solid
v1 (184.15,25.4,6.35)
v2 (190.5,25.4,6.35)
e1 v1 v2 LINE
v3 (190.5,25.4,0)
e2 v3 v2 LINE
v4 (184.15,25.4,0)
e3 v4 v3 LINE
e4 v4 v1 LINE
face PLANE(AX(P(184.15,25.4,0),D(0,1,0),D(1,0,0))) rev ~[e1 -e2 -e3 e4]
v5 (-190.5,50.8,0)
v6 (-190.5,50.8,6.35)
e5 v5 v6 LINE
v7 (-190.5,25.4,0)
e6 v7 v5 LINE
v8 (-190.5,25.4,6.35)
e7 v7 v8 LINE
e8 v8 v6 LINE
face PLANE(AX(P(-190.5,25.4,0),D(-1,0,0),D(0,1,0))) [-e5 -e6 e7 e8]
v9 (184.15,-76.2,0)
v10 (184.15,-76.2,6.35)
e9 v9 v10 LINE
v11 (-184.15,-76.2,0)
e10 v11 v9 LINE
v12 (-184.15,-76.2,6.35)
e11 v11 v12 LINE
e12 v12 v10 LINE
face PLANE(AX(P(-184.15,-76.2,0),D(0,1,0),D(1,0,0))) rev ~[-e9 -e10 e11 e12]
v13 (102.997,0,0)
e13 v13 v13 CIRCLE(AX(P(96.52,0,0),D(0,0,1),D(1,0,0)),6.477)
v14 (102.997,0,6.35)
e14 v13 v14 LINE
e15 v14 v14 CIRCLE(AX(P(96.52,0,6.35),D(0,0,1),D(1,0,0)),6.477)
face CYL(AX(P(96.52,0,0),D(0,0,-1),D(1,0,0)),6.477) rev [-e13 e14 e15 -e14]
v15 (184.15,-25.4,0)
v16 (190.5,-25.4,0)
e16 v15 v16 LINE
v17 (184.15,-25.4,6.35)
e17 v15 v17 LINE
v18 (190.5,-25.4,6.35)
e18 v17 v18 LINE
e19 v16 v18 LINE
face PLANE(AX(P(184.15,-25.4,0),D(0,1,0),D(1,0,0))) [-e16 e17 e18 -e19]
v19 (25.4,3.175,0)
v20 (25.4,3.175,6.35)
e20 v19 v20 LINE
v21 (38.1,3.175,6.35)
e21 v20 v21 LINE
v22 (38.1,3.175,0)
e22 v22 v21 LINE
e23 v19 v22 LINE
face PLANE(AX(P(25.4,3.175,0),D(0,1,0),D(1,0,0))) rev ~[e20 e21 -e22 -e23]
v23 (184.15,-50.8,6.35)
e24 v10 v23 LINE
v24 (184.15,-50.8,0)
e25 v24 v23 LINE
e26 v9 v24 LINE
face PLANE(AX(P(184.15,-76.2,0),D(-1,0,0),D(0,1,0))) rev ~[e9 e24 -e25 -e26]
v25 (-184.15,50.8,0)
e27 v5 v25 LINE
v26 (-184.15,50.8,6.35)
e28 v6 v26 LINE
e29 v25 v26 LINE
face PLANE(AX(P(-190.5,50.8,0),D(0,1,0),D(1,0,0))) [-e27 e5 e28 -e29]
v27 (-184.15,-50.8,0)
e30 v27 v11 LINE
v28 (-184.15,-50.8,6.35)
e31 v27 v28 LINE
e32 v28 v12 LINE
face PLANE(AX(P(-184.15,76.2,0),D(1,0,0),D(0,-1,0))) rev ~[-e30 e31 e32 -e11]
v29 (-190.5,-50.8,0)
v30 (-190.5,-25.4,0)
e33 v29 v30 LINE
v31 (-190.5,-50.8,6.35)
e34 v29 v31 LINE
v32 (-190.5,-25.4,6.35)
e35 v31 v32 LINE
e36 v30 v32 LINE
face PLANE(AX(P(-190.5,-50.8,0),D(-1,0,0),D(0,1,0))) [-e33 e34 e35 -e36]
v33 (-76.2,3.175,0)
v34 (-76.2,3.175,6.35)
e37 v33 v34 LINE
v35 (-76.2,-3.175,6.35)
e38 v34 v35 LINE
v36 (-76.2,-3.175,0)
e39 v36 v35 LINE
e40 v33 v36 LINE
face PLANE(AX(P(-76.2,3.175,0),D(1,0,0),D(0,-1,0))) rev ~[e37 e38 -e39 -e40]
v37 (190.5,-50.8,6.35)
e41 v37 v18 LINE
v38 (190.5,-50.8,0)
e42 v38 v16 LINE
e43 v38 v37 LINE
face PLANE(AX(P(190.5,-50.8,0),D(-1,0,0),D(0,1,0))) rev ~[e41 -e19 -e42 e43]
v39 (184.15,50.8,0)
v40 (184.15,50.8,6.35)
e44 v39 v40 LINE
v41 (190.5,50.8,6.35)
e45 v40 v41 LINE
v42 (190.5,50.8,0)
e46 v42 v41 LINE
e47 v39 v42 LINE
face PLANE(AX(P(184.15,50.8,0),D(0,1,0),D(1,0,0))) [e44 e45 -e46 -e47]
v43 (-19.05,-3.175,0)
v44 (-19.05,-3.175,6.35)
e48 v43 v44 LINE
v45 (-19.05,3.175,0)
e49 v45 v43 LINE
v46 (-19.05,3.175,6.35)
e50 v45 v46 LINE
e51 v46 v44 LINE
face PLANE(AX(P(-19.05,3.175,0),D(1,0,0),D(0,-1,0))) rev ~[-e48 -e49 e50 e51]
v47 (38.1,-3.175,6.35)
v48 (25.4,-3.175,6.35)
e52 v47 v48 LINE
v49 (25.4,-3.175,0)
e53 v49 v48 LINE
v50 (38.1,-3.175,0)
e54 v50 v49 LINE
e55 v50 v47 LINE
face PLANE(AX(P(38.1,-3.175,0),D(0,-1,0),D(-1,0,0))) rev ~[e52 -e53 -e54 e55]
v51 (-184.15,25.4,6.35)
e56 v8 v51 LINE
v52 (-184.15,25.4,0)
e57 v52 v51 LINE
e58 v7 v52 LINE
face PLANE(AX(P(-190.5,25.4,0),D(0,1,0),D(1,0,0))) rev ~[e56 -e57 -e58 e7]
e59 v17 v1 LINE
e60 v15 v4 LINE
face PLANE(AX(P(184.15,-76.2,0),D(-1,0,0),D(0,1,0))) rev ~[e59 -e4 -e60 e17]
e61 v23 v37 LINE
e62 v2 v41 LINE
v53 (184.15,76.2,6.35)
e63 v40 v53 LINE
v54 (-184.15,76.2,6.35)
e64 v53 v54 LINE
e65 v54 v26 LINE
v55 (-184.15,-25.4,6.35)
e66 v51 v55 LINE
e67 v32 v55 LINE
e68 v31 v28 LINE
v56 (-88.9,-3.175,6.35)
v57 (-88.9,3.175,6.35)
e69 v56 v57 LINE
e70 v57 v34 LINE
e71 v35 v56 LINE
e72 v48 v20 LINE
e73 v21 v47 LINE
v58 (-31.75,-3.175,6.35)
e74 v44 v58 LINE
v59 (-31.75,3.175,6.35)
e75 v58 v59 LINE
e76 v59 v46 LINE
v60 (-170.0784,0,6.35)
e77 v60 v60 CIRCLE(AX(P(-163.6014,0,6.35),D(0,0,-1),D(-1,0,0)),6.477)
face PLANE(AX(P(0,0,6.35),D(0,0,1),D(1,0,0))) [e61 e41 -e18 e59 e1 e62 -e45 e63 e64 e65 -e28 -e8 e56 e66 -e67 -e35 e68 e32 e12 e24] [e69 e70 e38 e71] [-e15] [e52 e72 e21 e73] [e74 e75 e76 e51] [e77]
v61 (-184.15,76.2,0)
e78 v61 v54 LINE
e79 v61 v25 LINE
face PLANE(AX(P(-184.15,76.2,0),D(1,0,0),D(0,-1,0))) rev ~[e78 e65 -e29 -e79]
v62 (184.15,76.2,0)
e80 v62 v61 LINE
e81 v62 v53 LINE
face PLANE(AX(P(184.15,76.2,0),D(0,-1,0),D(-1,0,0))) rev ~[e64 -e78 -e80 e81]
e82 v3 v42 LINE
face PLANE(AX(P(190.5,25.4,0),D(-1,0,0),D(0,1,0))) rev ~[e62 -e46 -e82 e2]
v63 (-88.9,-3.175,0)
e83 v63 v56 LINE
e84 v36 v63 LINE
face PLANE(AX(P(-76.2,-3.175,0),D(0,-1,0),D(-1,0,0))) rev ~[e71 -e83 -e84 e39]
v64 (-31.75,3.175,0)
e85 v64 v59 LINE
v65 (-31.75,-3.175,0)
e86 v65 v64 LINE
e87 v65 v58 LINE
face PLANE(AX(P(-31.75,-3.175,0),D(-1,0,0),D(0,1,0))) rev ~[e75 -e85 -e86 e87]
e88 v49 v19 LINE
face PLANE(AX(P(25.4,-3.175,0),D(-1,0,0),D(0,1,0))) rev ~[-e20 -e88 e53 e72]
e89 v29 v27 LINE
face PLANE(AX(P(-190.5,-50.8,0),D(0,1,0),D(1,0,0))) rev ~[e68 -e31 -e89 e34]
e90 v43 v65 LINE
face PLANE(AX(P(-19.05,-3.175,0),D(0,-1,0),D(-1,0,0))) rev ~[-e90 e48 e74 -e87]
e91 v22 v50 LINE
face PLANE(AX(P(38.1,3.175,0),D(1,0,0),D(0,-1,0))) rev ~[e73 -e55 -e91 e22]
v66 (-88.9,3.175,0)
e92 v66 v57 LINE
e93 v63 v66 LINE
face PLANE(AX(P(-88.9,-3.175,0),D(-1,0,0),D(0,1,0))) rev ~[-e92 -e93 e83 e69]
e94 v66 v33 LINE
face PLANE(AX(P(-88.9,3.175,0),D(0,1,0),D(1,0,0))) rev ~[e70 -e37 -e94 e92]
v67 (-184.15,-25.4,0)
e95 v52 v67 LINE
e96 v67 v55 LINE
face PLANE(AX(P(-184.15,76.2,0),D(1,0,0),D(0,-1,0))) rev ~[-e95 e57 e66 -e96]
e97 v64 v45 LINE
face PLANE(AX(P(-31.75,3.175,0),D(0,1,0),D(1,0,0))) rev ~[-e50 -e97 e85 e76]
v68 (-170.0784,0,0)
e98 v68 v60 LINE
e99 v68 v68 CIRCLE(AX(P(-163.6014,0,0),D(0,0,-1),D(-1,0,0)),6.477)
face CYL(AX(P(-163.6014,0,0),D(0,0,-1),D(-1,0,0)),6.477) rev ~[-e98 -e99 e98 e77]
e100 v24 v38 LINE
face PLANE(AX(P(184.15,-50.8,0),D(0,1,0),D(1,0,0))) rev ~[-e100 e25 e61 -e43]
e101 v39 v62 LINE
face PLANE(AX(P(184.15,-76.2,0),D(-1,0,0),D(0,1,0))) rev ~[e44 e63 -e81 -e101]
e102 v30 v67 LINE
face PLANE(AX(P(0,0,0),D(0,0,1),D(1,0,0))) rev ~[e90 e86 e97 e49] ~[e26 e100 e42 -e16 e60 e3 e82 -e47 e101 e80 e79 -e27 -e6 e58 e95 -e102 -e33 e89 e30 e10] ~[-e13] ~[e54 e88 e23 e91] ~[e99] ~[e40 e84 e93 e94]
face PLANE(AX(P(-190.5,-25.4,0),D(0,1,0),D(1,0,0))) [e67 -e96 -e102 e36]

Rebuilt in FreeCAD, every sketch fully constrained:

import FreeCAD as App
import Part
import Sketcher
Q = App.Units.Quantity


def add_polygon(sketch, points):
    """Adds a closed chain of lines whose ends are joined by coincident constraints."""
    first, n = sketch.GeometryCount, len(points)
    for a, b in zip(points, points[1:] + points[:1]):
        sketch.addGeometry(Part.LineSegment(App.Vector(*a, 0), App.Vector(*b, 0)), False)
    for i in range(n):
        sketch.addConstraint(Sketcher.Constraint("Coincident", first + i, 2, first + (i + 1) % n, 1))

doc = App.newDocument("Part")
body = doc.addObject("PartDesign::Body", "Body")

sketch1 = doc.addObject("Sketcher::SketchObject", "Sketch")
body.addObject(sketch1)
sketch1.AttachmentSupport = (doc.XY_Plane, [""])
sketch1.MapMode = "FlatFace"
add_polygon(sketch1, [(184, 76), (-184, 76), (-184, -76), (184, -76)])
sketch1.addGeometry(Part.Circle(App.Vector(-164, 0, 0), App.Vector(0, 0, 1), 6), False)
add_polygon(sketch1, [(-76, -3), (-89, -3), (-89, 3), (-76, 3)])
add_polygon(sketch1, [(-19, -3), (-32, -3), (-32, 3), (-19, 3)])
add_polygon(sketch1, [(38, -3), (25, -3), (25, 3), (38, 3)])
sketch1.addGeometry(Part.Circle(App.Vector(97, 0, 0), App.Vector(0, 0, 1), 6), False)
sketch1.addConstraint(Sketcher.Constraint("Horizontal", 0))
sketch1.addConstraint(Sketcher.Constraint("Vertical", 1))
sketch1.addConstraint(Sketcher.Constraint("Horizontal", 2))
sketch1.addConstraint(Sketcher.Constraint("Vertical", 3))
sketch1.addConstraint(Sketcher.Constraint("Horizontal", 5))
sketch1.addConstraint(Sketcher.Constraint("Vertical", 6))
sketch1.addConstraint(Sketcher.Constraint("Horizontal", 7))
sketch1.addConstraint(Sketcher.Constraint("Vertical", 8))
sketch1.addConstraint(Sketcher.Constraint("Horizontal", 9))
sketch1.addConstraint(Sketcher.Constraint("Vertical", 10))
sketch1.addConstraint(Sketcher.Constraint("Horizontal", 11))
sketch1.addConstraint(Sketcher.Constraint("Vertical", 12))
sketch1.addConstraint(Sketcher.Constraint("Horizontal", 13))
sketch1.addConstraint(Sketcher.Constraint("Vertical", 14))
sketch1.addConstraint(Sketcher.Constraint("Horizontal", 15))
sketch1.addConstraint(Sketcher.Constraint("Vertical", 16))
sketch1.addConstraint(Sketcher.Constraint("Equal", 4, 17))
sketch1.addConstraint(Sketcher.Constraint("Symmetric", 0, 2, 2, 2, -1, 1))
sketch1.addConstraint(Sketcher.Constraint("PointOnObject", 4, 3, -1))
sketch1.addConstraint(Sketcher.Constraint("PointOnObject", 17, 3, -1))
sketch1.addConstraint(Sketcher.Constraint("Horizontal", 8, 2, 9, 2))
sketch1.addConstraint(Sketcher.Constraint("Horizontal", 7, 2, 10, 2))
sketch1.addConstraint(Sketcher.Constraint("Horizontal", 12, 2, 13, 2))
sketch1.addConstraint(Sketcher.Constraint("Horizontal", 11, 2, 14, 2))
sketch1.addConstraint(Sketcher.Constraint("Equal", 7, 9))
sketch1.addConstraint(Sketcher.Constraint("Equal", 11, 13))
sketch1.addConstraint(Sketcher.Constraint("Diameter", 4, Q("0.51 in")))
sketch1.addConstraint(Sketcher.Constraint("DistanceY", 1, 2, 1, 1, Q("6 in")))
sketch1.addConstraint(Sketcher.Constraint("DistanceX", 0, 2, 0, 1, Q("14.5 in")))
sketch1.addConstraint(Sketcher.Constraint("DistanceX", 5, 2, 5, 1, Q("0.5 in")))
sketch1.addConstraint(Sketcher.Constraint("DistanceX", 7, 2, -1, 1, Q("3 in")))
sketch1.addConstraint(Sketcher.Constraint("DistanceX", -1, 1, 13, 2, Q("1 in")))
sketch1.addConstraint(Sketcher.Constraint("DistanceY", 6, 1, 6, 2, Q("0.25 in")))
sketch1.addConstraint(Sketcher.Constraint("DistanceX", -1, 1, 17, 3, Q("3.8 in")))
sketch1.addConstraint(Sketcher.Constraint("DistanceX", 9, 2, -1, 1, Q("1.25 in")))
sketch1.addConstraint(Sketcher.Constraint("DistanceX", 4, 3, -1, 1, Q("6.441 in")))
sketch1.addConstraint(Sketcher.Constraint("DistanceY", 5, 2, -1, 1, Q("0.125 in")))
pad1 = doc.addObject("PartDesign::Pad", "Pad")
body.addObject(pad1)
pad1.Profile = sketch1
pad1.Length = Q("0.25 in")

sketch2 = doc.addObject("Sketcher::SketchObject", "Sketch001")
body.addObject(sketch2)
sketch2.AttachmentSupport = (doc.XY_Plane, [""])
sketch2.MapMode = "FlatFace"
add_polygon(sketch2, [(184, -25), (184, -51), (190, -51), (190, -25)])
sketch2.addConstraint(Sketcher.Constraint("Vertical", 0))
sketch2.addConstraint(Sketcher.Constraint("Horizontal", 1))
sketch2.addConstraint(Sketcher.Constraint("Vertical", 2))
sketch2.addConstraint(Sketcher.Constraint("Horizontal", 3))
sketch2.addConstraint(Sketcher.Constraint("DistanceY", 0, 2, 0, 1, Q("1 in")))
sketch2.addConstraint(Sketcher.Constraint("DistanceY", 0, 2, -1, 1, Q("2 in")))
sketch2.addConstraint(Sketcher.Constraint("DistanceX", 1, 1, 1, 2, Q("0.25 in")))
sketch2.addConstraint(Sketcher.Constraint("DistanceX", -1, 1, 1, 2, Q("7.5 in")))
pad2 = doc.addObject("PartDesign::Pad", "Pad001")
body.addObject(pad2)
pad2.Profile = sketch2
pad2.Length = Q("0.25 in")

sketch3 = doc.addObject("Sketcher::SketchObject", "Sketch002")
body.addObject(sketch3)
sketch3.AttachmentSupport = (doc.XY_Plane, [""])
sketch3.MapMode = "FlatFace"
add_polygon(sketch3, [(184, 51), (184, 25), (190, 25), (190, 51)])
sketch3.addConstraint(Sketcher.Constraint("Vertical", 0))
sketch3.addConstraint(Sketcher.Constraint("Horizontal", 1))
sketch3.addConstraint(Sketcher.Constraint("Vertical", 2))
sketch3.addConstraint(Sketcher.Constraint("Horizontal", 3))
sketch3.addConstraint(Sketcher.Constraint("DistanceY", 0, 2, 0, 1, Q("1 in")))
sketch3.addConstraint(Sketcher.Constraint("DistanceY", -1, 1, 0, 2, Q("1 in")))
sketch3.addConstraint(Sketcher.Constraint("DistanceX", 1, 1, 1, 2, Q("0.25 in")))
sketch3.addConstraint(Sketcher.Constraint("DistanceX", -1, 1, 1, 2, Q("7.5 in")))
pad3 = doc.addObject("PartDesign::Pad", "Pad002")
body.addObject(pad3)
pad3.Profile = sketch3
pad3.Length = Q("0.25 in")

sketch4 = doc.addObject("Sketcher::SketchObject", "Sketch003")
body.addObject(sketch4)
sketch4.AttachmentSupport = (doc.XY_Plane, [""])
sketch4.MapMode = "FlatFace"
add_polygon(sketch4, [(-190, -25), (-190, -51), (-184, -51), (-184, -25)])
sketch4.addConstraint(Sketcher.Constraint("Vertical", 0))
sketch4.addConstraint(Sketcher.Constraint("Horizontal", 1))
sketch4.addConstraint(Sketcher.Constraint("Vertical", 2))
sketch4.addConstraint(Sketcher.Constraint("Horizontal", 3))
sketch4.addConstraint(Sketcher.Constraint("DistanceY", 0, 2, 0, 1, Q("1 in")))
sketch4.addConstraint(Sketcher.Constraint("DistanceY", 0, 2, -1, 1, Q("2 in")))
sketch4.addConstraint(Sketcher.Constraint("DistanceX", 1, 1, 1, 2, Q("0.25 in")))
sketch4.addConstraint(Sketcher.Constraint("DistanceX", 0, 2, -1, 1, Q("7.5 in")))
pad4 = doc.addObject("PartDesign::Pad", "Pad003")
body.addObject(pad4)
pad4.Profile = sketch4
pad4.Length = Q("0.25 in")

sketch5 = doc.addObject("Sketcher::SketchObject", "Sketch004")
body.addObject(sketch5)
sketch5.AttachmentSupport = (doc.XY_Plane, [""])
sketch5.MapMode = "FlatFace"
add_polygon(sketch5, [(-190, 51), (-190, 25), (-184, 25), (-184, 51)])
sketch5.addConstraint(Sketcher.Constraint("Vertical", 0))
sketch5.addConstraint(Sketcher.Constraint("Horizontal", 1))
sketch5.addConstraint(Sketcher.Constraint("Vertical", 2))
sketch5.addConstraint(Sketcher.Constraint("Horizontal", 3))
sketch5.addConstraint(Sketcher.Constraint("DistanceY", 0, 2, 0, 1, Q("1 in")))
sketch5.addConstraint(Sketcher.Constraint("DistanceY", -1, 1, 0, 2, Q("1 in")))
sketch5.addConstraint(Sketcher.Constraint("DistanceX", 1, 1, 1, 2, Q("0.25 in")))
sketch5.addConstraint(Sketcher.Constraint("DistanceX", 0, 2, -1, 1, Q("7.5 in")))
pad5 = doc.addObject("PartDesign::Pad", "Pad004")
body.addObject(pad5)
pad5.Profile = sketch5
pad5.Length = Q("0.25 in")

doc.recompute()
